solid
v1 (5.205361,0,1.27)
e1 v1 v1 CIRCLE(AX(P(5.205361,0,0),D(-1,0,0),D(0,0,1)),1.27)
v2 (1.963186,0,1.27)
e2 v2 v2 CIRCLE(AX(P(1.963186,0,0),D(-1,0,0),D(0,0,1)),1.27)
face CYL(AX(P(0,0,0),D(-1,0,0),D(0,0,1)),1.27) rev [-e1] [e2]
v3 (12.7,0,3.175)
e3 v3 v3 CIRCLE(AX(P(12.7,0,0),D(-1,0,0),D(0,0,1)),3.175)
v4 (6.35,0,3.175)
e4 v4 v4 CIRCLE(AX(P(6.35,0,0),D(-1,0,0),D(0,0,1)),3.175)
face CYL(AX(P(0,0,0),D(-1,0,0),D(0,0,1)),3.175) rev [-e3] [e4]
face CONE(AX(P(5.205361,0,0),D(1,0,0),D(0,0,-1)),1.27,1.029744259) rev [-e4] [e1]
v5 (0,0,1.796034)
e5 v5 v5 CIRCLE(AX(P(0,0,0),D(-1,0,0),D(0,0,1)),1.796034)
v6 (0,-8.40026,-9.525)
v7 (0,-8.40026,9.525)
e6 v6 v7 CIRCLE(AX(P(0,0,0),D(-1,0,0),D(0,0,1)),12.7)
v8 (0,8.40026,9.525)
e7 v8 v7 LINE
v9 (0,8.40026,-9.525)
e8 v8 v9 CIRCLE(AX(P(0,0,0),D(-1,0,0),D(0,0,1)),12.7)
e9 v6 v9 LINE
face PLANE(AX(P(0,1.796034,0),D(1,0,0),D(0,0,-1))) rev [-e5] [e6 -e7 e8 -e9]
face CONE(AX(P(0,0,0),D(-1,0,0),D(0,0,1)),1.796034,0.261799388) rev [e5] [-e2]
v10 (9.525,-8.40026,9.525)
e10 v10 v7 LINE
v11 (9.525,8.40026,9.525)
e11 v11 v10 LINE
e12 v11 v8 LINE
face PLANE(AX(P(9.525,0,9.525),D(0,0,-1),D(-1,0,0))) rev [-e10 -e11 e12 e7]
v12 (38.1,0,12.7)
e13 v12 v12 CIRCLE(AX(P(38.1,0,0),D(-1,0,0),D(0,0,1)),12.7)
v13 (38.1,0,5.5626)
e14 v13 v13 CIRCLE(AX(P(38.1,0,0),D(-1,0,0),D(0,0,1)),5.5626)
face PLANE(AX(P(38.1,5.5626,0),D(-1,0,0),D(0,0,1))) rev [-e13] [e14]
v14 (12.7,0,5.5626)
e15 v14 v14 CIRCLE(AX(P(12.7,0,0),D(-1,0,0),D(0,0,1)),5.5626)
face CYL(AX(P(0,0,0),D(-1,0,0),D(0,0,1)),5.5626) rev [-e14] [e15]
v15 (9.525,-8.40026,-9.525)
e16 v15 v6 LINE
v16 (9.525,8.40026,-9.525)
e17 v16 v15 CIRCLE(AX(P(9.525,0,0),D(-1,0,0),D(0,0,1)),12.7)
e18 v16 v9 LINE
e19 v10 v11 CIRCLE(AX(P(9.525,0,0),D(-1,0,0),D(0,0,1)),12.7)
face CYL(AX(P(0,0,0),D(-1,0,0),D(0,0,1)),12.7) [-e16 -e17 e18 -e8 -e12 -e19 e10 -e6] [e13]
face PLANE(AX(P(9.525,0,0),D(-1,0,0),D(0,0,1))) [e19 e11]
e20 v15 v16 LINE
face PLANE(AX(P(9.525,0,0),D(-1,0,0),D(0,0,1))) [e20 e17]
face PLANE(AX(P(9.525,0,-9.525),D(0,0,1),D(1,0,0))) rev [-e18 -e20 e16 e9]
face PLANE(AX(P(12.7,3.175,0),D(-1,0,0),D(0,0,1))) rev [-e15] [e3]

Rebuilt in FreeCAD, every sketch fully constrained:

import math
import FreeCAD as App
import Part
import Sketcher

V = App.Vector
Q = App.Units.Quantity

doc = App.newDocument("Part")
body = doc.addObject("PartDesign::Body", "Body")

sketch1 = body.newObject("Sketcher::SketchObject", "Sketch")
sketch1.AttachmentSupport = (doc.getObject("XY_Plane"), [""])
sketch1.MapMode = "FlatFace"
sketch1.addGeometry([
    Part.LineSegment(V(0, 1.796034, 0), V(1.963186, 1.27, 0)),
    Part.LineSegment(V(1.963186, 1.27, 0), V(5.205361, 1.27, 0)),
    Part.LineSegment(V(5.205361, 1.27, 0), V(6.35, 3.175, 0)),
    Part.LineSegment(V(6.35, 3.175, 0), V(12.7, 3.175, 0)),
    Part.LineSegment(V(12.7, 3.175, 0), V(12.7, 5.5626, 0)),
    Part.LineSegment(V(12.7, 5.5626, 0), V(38.1, 5.5626, 0)),
    Part.LineSegment(V(38.1, 5.5626, 0), V(38.1, 12.7, 0)),
    Part.LineSegment(V(38.1, 12.7, 0), V(0, 12.7, 0)),
    Part.LineSegment(V(0, 12.7, 0), V(0, 1.796034, 0)),
], False)
sketch1.addConstraint([
    Sketcher.Constraint("Coincident", 0, 2, 1, 1),
    Sketcher.Constraint("Coincident", 1, 2, 2, 1),
    Sketcher.Constraint("Coincident", 2, 2, 3, 1),
    Sketcher.Constraint("Coincident", 3, 2, 4, 1),
    Sketcher.Constraint("Coincident", 4, 2, 5, 1),
    Sketcher.Constraint("Coincident", 5, 2, 6, 1),
    Sketcher.Constraint("Coincident", 6, 2, 7, 1),
    Sketcher.Constraint("Coincident", 7, 2, 8, 1),
    Sketcher.Constraint("Coincident", 8, 2, 0, 1),
    Sketcher.Constraint("Horizontal", 1),
    Sketcher.Constraint("Horizontal", 3),
    Sketcher.Constraint("Vertical", 4),
    Sketcher.Constraint("Horizontal", 5),
    Sketcher.Constraint("Vertical", 6),
    Sketcher.Constraint("Horizontal", 7),
    Sketcher.Constraint("Vertical", 8),
    Sketcher.Constraint("PointOnObject", 7, 2, -2),
    Sketcher.Constraint("DistanceX", 5, 1, 5, 2, Q("1 in")),
    Sketcher.Constraint("DistanceX", 7, 2, 7, 1, Q("1.5 in")),
    Sketcher.Constraint("Angle", 0, Q("-15 deg")),
    Sketcher.Constraint("Angle", 2, Q("59 deg")),
    Sketcher.Constraint("DistanceX", 3, 1, 3, 2, Q("0.25 in")),
    Sketcher.Constraint("DistanceY", -1, 1, 6, 2, Q("0.5 in")),
    Sketcher.Constraint("DistanceY", 4, 1, 4, 2, Q("0.094 in")),
    Sketcher.Constraint("DistanceY", 6, 1, 6, 2, Q("0.281 in")),
    Sketcher.Constraint("DistanceY", -1, 1, 0, 2, Q("0.05 in")),
    Sketcher.Constraint("Distance", 0, 2.032439),
])
revolution = body.newObject("PartDesign::Revolution", "Revolution")
revolution.Profile = sketch1
revolution.ReferenceAxis = (sketch1, ["H_Axis"])
revolution.Angle = 360

sketch2 = body.newObject("Sketcher::SketchObject", "Sketch001")
sketch2.AttachmentSupport = (doc.getObject("YZ_Plane"), [""])
sketch2.MapMode = "FlatFace"
sketch2.addGeometry([
    Part.ArcOfCircle(Part.Circle(V(0, 0, 0), V(0, 0, 1), 12.7), math.radians(-131.409622), math.radians(-48.590378)),
    Part.LineSegment(V(-8.40026, -9.525, 0), V(8.40026, -9.525, 0)),
    Part.LineSegment(V(8.40026, 9.525, 0), V(-8.40026, 9.525, 0)),
    Part.ArcOfCircle(Part.Circle(V(0, 0, 0), V(0, 0, 1), 12.7), math.radians(90), math.radians(131.409622)),
    Part.ArcOfCircle(Part.Circle(V(0, 0, 0), V(0, 0, 1), 12.7), math.radians(48.590378), math.radians(90)),
], False)
sketch2.addConstraint([
    Sketcher.Constraint("Coincident", 0, 1, 1, 1),
    Sketcher.Constraint("Coincident", 1, 2, 0, 2),
    Sketcher.Constraint("Coincident", 2, 2, 3, 2),
    Sketcher.Constraint("Tangent", 3, 1, 4, 2),
    Sketcher.Constraint("Coincident", 4, 1, 2, 1),
    Sketcher.Constraint("Horizontal", 1),
    Sketcher.Constraint("Horizontal", 2),
    Sketcher.Constraint("Coincident", 0, 3, -1, 1),
    Sketcher.Constraint("Coincident", 3, 3, -1, 1),
    Sketcher.Constraint("Equal", 0, 3),
    Sketcher.Constraint("Equal", 3, 4),
    Sketcher.Constraint("PointOnObject", 3, 1, -2),
    Sketcher.Constraint("Vertical", 0, 1, 2, 2),
    Sketcher.Constraint("Radius", 0, Q("0.5 in")),
    Sketcher.Constraint("DistanceY", 0, 1, 2, 2, Q("0.75 in")),
])
pocket1 = body.newObject("PartDesign::Pocket", "Pocket")
pocket1.Profile = sketch2
pocket1.Length = Q("0.375 in")
pocket1.Reversed = True

doc.recompute()
